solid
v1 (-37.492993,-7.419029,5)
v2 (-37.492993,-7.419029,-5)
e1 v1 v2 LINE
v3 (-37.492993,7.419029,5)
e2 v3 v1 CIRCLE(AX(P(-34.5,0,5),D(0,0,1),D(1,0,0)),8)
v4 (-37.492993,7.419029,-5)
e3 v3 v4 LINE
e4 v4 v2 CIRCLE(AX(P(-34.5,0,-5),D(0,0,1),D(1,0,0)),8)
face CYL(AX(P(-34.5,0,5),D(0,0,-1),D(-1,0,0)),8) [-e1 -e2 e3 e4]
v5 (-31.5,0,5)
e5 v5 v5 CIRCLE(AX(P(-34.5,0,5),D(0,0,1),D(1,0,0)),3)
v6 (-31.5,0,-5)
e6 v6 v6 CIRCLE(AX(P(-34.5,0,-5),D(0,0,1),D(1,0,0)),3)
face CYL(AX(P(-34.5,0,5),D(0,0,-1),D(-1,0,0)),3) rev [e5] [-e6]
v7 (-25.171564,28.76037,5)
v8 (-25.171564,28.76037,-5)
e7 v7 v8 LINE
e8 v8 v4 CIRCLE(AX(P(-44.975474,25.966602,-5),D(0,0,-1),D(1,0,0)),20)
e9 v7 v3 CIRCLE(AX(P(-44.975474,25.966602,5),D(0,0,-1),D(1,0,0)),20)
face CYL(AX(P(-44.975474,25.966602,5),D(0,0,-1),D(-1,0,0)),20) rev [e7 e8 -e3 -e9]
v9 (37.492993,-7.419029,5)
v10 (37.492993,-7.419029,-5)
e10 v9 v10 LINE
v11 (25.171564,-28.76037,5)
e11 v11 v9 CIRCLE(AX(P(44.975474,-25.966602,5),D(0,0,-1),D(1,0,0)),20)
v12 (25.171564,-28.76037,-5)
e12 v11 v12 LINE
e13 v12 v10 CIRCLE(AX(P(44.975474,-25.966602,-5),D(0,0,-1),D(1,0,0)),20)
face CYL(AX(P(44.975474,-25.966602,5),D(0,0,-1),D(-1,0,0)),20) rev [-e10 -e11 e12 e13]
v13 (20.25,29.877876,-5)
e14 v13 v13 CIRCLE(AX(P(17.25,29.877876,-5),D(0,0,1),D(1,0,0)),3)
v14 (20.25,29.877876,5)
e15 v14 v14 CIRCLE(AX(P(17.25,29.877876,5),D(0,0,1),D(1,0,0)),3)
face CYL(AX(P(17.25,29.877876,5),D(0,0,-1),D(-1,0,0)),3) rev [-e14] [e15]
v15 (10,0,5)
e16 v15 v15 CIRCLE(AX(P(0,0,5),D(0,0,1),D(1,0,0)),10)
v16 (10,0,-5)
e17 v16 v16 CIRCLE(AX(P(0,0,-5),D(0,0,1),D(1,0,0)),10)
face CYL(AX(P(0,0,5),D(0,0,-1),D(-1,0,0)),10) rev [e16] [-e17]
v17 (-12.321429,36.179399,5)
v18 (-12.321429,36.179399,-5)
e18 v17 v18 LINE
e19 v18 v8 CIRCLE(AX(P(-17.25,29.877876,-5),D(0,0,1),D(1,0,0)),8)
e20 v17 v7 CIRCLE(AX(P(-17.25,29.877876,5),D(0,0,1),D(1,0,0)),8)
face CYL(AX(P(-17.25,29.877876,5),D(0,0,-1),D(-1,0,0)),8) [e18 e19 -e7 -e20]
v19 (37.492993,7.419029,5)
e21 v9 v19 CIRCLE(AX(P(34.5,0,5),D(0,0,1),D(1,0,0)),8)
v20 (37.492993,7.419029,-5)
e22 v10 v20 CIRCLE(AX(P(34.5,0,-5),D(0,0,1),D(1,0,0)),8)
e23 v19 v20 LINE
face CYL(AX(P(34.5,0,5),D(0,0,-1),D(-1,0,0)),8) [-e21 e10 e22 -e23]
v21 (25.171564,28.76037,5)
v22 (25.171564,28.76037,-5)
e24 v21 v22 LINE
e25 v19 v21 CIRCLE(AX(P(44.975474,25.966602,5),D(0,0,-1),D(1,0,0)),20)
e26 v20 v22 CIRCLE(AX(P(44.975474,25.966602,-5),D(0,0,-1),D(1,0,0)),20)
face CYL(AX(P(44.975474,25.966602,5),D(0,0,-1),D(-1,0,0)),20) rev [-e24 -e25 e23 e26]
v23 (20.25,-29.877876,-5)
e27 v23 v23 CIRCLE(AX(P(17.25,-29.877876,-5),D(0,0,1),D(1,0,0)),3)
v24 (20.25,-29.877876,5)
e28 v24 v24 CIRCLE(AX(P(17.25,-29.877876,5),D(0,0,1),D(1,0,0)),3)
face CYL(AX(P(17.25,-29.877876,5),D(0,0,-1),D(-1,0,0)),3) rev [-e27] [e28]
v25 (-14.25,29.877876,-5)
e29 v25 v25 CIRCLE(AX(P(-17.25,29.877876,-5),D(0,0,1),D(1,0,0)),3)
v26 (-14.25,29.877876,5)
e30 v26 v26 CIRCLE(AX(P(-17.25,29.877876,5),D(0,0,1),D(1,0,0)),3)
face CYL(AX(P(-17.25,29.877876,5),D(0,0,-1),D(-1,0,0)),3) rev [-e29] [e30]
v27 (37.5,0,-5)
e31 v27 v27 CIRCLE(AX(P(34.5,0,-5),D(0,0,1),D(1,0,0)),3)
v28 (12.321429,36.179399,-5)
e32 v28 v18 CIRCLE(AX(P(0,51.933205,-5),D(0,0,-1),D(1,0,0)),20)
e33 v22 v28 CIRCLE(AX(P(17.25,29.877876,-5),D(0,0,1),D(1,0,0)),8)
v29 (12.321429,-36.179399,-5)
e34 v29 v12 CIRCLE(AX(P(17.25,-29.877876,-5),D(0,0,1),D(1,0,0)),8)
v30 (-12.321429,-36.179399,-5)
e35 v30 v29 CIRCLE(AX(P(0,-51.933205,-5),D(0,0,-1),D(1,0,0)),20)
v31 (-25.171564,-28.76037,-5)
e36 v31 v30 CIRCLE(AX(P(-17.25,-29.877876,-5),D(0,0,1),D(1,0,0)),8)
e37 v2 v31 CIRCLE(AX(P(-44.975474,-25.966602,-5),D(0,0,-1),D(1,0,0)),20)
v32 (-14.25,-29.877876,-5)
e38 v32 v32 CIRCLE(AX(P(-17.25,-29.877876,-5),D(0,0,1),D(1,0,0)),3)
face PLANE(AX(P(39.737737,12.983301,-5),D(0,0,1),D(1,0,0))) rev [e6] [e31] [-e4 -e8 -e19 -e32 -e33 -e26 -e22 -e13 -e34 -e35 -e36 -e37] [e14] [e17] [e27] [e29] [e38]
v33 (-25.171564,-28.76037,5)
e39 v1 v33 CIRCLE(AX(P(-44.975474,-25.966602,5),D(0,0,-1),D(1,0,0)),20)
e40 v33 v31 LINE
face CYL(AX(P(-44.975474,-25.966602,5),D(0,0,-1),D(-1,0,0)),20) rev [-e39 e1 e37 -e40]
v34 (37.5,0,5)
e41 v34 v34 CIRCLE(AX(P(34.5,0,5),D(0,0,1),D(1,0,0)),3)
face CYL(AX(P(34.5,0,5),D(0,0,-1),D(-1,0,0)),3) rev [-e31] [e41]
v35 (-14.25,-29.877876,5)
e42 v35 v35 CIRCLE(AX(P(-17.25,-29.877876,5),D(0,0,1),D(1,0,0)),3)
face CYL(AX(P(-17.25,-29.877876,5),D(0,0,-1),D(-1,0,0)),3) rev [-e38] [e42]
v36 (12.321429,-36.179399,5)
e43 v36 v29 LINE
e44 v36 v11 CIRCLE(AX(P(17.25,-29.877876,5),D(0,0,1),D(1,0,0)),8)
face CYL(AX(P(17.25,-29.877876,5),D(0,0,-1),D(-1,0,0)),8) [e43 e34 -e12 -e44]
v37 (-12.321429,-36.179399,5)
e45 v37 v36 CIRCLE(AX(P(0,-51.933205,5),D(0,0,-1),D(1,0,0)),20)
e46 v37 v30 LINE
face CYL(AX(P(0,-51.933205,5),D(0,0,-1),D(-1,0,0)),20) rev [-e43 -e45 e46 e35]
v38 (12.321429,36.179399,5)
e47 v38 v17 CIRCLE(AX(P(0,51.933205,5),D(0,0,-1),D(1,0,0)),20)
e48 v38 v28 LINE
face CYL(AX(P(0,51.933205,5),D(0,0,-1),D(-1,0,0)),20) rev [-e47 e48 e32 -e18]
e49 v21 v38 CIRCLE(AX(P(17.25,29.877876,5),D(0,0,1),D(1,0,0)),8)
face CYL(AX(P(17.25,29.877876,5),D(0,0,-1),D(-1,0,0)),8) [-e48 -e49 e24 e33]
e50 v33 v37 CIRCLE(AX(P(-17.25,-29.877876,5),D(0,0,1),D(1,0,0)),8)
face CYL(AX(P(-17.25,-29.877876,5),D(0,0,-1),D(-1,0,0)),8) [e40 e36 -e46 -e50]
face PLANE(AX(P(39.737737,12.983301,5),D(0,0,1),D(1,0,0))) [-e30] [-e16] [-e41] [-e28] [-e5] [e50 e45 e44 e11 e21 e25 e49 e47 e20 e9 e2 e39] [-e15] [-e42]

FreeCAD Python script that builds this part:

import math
import FreeCAD as App
import Part
import Sketcher

V = App.Vector

doc = App.newDocument("Part")
body = doc.addObject("PartDesign::Body", "Body")

sketch1 = body.newObject("Sketcher::SketchObject", "Sketch")
sketch1.AttachmentSupport = (doc.getObject("XY_Plane"), [""])
sketch1.MapMode = "FlatFace"
sketch1.addGeometry([
    Part.ArcOfCircle(Part.Circle(V(34.5, 0, 0), V(0, 0, 1), 8), math.radians(-68), math.radians(68)),
    Part.ArcOfCircle(Part.Circle(V(45, 26, 0), V(0, 0, 1), 20), math.radians(172), math.radians(248)),
    Part.ArcOfCircle(Part.Circle(V(17.2, 29.9, 0), V(0, 0, 1), 8), math.radians(-8), math.radians(128)),
    Part.ArcOfCircle(Part.Circle(V(0, 51.9, 0), V(0, 0, 1), 20), math.radians(-128), math.radians(-52)),
    Part.ArcOfCircle(Part.Circle(V(-17.2, 29.9, 0), V(0, 0, 1), 8), math.radians(52), math.radians(188)),
    Part.ArcOfCircle(Part.Circle(V(-45, 26, 0), V(0, 0, 1), 20), math.radians(-68), math.radians(8)),
    Part.ArcOfCircle(Part.Circle(V(-34.5, 0, 0), V(0, 0, 1), 8), math.radians(112), math.radians(248)),
    Part.ArcOfCircle(Part.Circle(V(-45, -26, 0), V(0, 0, 1), 20), math.radians(-8), math.radians(68)),
    Part.ArcOfCircle(Part.Circle(V(-17.2, -29.9, 0), V(0, 0, 1), 8), math.radians(172), math.radians(308)),
    Part.ArcOfCircle(Part.Circle(V(0, -51.9, 0), V(0, 0, 1), 20), math.radians(52), math.radians(128)),
    Part.ArcOfCircle(Part.Circle(V(17.2, -29.9, 0), V(0, 0, 1), 8), math.radians(-128), math.radians(8)),
    Part.ArcOfCircle(Part.Circle(V(45, -26, 0), V(0, 0, 1), 20), math.radians(112), math.radians(188)),
    Part.Circle(V(-17.2, -29.9, 0), V(0, 0, 1), 3),
    Part.Circle(V(17.2, -29.9, 0), V(0, 0, 1), 3),
    Part.Circle(V(-34.5, 0, 0), V(0, 0, 1), 3),
    Part.Circle(V(-17.2, 29.9, 0), V(0, 0, 1), 3),
    Part.Circle(V(0, 0, 0), V(0, 0, 1), 10),
    Part.Circle(V(34.5, 0, 0), V(0, 0, 1), 3),
    Part.Circle(V(17.2, 29.9, 0), V(0, 0, 1), 3),
], False)
sketch1.addConstraint([
    Sketcher.Constraint("Tangent", 0, 2, 1, 2),
    Sketcher.Constraint("Tangent", 1, 1, 2, 1),
    Sketcher.Constraint("Tangent", 2, 2, 3, 2),
    Sketcher.Constraint("Tangent", 3, 1, 4, 1),
    Sketcher.Constraint("Tangent", 4, 2, 5, 2),
    Sketcher.Constraint("Tangent", 5, 1, 6, 1),
    Sketcher.Constraint("Tangent", 6, 2, 7, 2),
    Sketcher.Constraint("Tangent", 7, 1, 8, 1),
    Sketcher.Constraint("Tangent", 8, 2, 9, 2),
    Sketcher.Constraint("Tangent", 9, 1, 10, 1),
    Sketcher.Constraint("Tangent", 10, 2, 11, 2),
    Sketcher.Constraint("Tangent", 11, 1, 0, 1),
    Sketcher.Constraint("Coincident", 16, 3, -1, 1),
    Sketcher.Constraint("Coincident", 12, 3, 8, 3),
    Sketcher.Constraint("Coincident", 13, 3, 10, 3),
    Sketcher.Constraint("Coincident", 14, 3, 6, 3),
    Sketcher.Constraint("Coincident", 15, 3, 4, 3),
    Sketcher.Constraint("Coincident", 17, 3, 0, 3),
    Sketcher.Constraint("Coincident", 18, 3, 2, 3),
    Sketcher.Constraint("Equal", 0, 2),
    Sketcher.Constraint("Equal", 1, 3),
    Sketcher.Constraint("Equal", 2, 4),
    Sketcher.Constraint("Equal", 3, 5),
    Sketcher.Constraint("Equal", 4, 6),
    Sketcher.Constraint("Equal", 5, 7),
    Sketcher.Constraint("Equal", 6, 8),
    Sketcher.Constraint("Equal", 7, 9),
    Sketcher.Constraint("Equal", 8, 10),
    Sketcher.Constraint("Equal", 9, 11),
    Sketcher.Constraint("Equal", 12, 13),
    Sketcher.Constraint("Equal", 13, 14),
    Sketcher.Constraint("Equal", 14, 15),
    Sketcher.Constraint("Equal", 15, 17),
    Sketcher.Constraint("Equal", 17, 18),
    Sketcher.Constraint("Symmetric", 0, 3, 6, 3, -1, 1),
    Sketcher.Constraint("Symmetric", 2, 3, 8, 3, -1, 1),
    Sketcher.Constraint("Symmetric", 4, 3, 10, 3, -1, 1),
    Sketcher.Constraint("Symmetric", 2, 3, 4, 3, -2),
    Sketcher.Constraint("PointOnObject", 0, 3, -1),
    Sketcher.Constraint("Diameter", 12, 6.0),
    Sketcher.Constraint("Diameter", 16, 20.0),
    Sketcher.Constraint("Radius", 0, 8.0),
    Sketcher.Constraint("Radius", 1, 20.0),
    Sketcher.Constraint("DistanceX", 6, 3, 0, 3, 69.0),
    Sketcher.Constraint("DistanceX", 4, 3, 2, 3, 34.5),
    Sketcher.Constraint("DistanceY", -1, 1, 2, 2, 36.179399),
])
pad1 = body.newObject("PartDesign::Pad", "Pad")
pad1.Profile = sketch1
pad1.Length = 10
pad1.Midplane = True

doc.recompute()
